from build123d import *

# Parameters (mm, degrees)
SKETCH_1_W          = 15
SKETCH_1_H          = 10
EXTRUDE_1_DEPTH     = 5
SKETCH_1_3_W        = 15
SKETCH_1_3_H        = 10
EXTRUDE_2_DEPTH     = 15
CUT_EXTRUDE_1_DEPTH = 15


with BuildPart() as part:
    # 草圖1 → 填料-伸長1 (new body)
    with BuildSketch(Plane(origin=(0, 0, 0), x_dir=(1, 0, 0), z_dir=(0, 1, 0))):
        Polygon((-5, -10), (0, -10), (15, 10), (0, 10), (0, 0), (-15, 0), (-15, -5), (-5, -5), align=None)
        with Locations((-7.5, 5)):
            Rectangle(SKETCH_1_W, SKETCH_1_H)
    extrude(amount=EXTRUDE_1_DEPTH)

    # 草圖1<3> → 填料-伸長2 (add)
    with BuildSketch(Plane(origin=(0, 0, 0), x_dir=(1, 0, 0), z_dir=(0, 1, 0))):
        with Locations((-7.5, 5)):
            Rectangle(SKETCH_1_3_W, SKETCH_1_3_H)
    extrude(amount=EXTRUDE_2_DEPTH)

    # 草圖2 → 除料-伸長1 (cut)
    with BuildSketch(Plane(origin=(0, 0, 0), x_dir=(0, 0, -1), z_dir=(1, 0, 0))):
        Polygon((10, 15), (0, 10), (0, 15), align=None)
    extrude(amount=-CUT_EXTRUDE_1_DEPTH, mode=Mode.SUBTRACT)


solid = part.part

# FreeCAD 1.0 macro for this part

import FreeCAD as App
import Part
import Sketcher
from FreeCAD import Vector
Q = App.Units.Quantity


def add_polygon(sketch, points):
    """Adds a closed chain of lines whose ends are joined by coincident constraints."""
    first, n = sketch.GeometryCount, len(points)
    for a, b in zip(points, points[1:] + points[:1]):
        sketch.addGeometry(Part.LineSegment(App.Vector(*a, 0), App.Vector(*b, 0)), False)
    for i in range(n):
        sketch.addConstraint(Sketcher.Constraint("Coincident", first + i, 2, first + (i + 1) % n, 1))

doc = App.newDocument("Part")
params = doc.addObject("Spreadsheet::Sheet", "Params")
for row, (alias, value) in enumerate([
    ("sketch1_width", "5 mm"),
    ("sketch1_width2", "30 mm"),
    ("sketch1_width3", "10 mm"),
    ("sketch1_height", "15 mm"),
    ("pad1_length", "5 mm"),
    ("sketch2_width", "15 mm"),
    ("sketch2_height", "10 mm"),
    ("pad2_length", "15 mm"),
    ("sketch3_width", "5 mm"),
    ("sketch3_height", "10 mm"),
    ("pocket1_length", "15 mm"),
], start=1):
    params.set(f"A{row}", alias)
    params.set(f"B{row}", "=" + value)
    params.setAlias(f"B{row}", alias)

body = doc.addObject("PartDesign::Body", "Body")

sketch1 = body.newObject("Sketcher::SketchObject", "Sketch")
sketch1.AttachmentSupport = (doc.getObject("XZ_Plane"), [""])
sketch1.MapMode = "FlatFace"
add_polygon(sketch1, [(-5, 10), (0, 10), (15, -10), (-15, -10), (-15, 5), (-5, 5)])
sketch1.addConstraint([
    Sketcher.Constraint("Horizontal", 0),
    Sketcher.Constraint("Horizontal", 2),
    Sketcher.Constraint("Vertical", 3),
    Sketcher.Constraint("Horizontal", 4),
    Sketcher.Constraint("Vertical", 5),
    Sketcher.Constraint("PointOnObject", 0, 2, -2),
    Sketcher.Constraint("Equal", 0, 5),
    Sketcher.Constraint("DistanceX", 0, 1, 0, 2, Q("5 mm")),
    Sketcher.Constraint("DistanceX", 2, 2, 2, 1, Q("30 mm")),
    Sketcher.Constraint("DistanceX", 4, 1, 4, 2, Q("10 mm")),
    Sketcher.Constraint("DistanceY", 3, 1, 3, 2, Q("15 mm")),
    Sketcher.Constraint("DistanceY", -1, 1, 0, 2, Q("10 mm")),
])
sketch1.setExpression("Constraints[13]", "Params.sketch1_width")
sketch1.setExpression("Constraints[14]", "Params.sketch1_width2")
sketch1.setExpression("Constraints[15]", "Params.sketch1_width3")
sketch1.setExpression("Constraints[16]", "Params.sketch1_height")
pad1 = body.newObject("PartDesign::Pad", "Pad")
pad1.Profile = sketch1
pad1.setExpression("Length", "Params.pad1_length")
pad1.Reversed = True

sketch2 = body.newObject("Sketcher::SketchObject", "Sketch001")
sketch2.AttachmentSupport = (doc.getObject("XZ_Plane"), [""])
sketch2.MapMode = "FlatFace"
add_polygon(sketch2, [(-15, -10), (-15, 0), (0, 0), (0, -10)])
sketch2.addConstraint([
    Sketcher.Constraint("Vertical", 0),
    Sketcher.Constraint("Horizontal", 1),
    Sketcher.Constraint("Vertical", 2),
    Sketcher.Constraint("Horizontal", 3),
    Sketcher.Constraint("Coincident", 1, 2, -1, 1),
    Sketcher.Constraint("DistanceX", 1, 1, 1, 2, Q("15 mm")),
    Sketcher.Constraint("DistanceY", 0, 1, 0, 2, Q("10 mm")),
])
sketch2.setExpression("Constraints[9]", "Params.sketch2_width")
sketch2.setExpression("Constraints[10]", "Params.sketch2_height")
pad2 = body.newObject("PartDesign::Pad", "Pad001")
pad2.Profile = sketch2
pad2.setExpression("Length", "Params.pad2_length")
pad2.Reversed = True

sketch3 = body.newObject("Sketcher::SketchObject", "Sketch002")
sketch3.AttachmentSupport = (doc.getObject("YZ_Plane"), [""])
sketch3.MapMode = "FlatFace"
add_polygon(sketch3, [(10, 0), (15, -10), (15, 0)])
sketch3.addConstraint([
    Sketcher.Constraint("Vertical", 1),
    Sketcher.Constraint("Horizontal", 2),
    Sketcher.Constraint("PointOnObject", 1, 2, -1),
    Sketcher.Constraint("DistanceX", 2, 2, 2, 1, Q("5 mm")),
    Sketcher.Constraint("DistanceY", 1, 1, 1, 2, Q("10 mm")),
    Sketcher.Constraint("DistanceX", -1, 1, 0, 2, Q("15 mm")),
])
sketch3.setExpression("Constraints[6]", "Params.sketch3_width")
sketch3.setExpression("Constraints[7]", "Params.sketch3_height")
pocket1 = body.newObject("PartDesign::Pocket", "Pocket")
pocket1.Profile = sketch3
pocket1.setExpression("Length", "Params.pocket1_length")

doc.recompute()
